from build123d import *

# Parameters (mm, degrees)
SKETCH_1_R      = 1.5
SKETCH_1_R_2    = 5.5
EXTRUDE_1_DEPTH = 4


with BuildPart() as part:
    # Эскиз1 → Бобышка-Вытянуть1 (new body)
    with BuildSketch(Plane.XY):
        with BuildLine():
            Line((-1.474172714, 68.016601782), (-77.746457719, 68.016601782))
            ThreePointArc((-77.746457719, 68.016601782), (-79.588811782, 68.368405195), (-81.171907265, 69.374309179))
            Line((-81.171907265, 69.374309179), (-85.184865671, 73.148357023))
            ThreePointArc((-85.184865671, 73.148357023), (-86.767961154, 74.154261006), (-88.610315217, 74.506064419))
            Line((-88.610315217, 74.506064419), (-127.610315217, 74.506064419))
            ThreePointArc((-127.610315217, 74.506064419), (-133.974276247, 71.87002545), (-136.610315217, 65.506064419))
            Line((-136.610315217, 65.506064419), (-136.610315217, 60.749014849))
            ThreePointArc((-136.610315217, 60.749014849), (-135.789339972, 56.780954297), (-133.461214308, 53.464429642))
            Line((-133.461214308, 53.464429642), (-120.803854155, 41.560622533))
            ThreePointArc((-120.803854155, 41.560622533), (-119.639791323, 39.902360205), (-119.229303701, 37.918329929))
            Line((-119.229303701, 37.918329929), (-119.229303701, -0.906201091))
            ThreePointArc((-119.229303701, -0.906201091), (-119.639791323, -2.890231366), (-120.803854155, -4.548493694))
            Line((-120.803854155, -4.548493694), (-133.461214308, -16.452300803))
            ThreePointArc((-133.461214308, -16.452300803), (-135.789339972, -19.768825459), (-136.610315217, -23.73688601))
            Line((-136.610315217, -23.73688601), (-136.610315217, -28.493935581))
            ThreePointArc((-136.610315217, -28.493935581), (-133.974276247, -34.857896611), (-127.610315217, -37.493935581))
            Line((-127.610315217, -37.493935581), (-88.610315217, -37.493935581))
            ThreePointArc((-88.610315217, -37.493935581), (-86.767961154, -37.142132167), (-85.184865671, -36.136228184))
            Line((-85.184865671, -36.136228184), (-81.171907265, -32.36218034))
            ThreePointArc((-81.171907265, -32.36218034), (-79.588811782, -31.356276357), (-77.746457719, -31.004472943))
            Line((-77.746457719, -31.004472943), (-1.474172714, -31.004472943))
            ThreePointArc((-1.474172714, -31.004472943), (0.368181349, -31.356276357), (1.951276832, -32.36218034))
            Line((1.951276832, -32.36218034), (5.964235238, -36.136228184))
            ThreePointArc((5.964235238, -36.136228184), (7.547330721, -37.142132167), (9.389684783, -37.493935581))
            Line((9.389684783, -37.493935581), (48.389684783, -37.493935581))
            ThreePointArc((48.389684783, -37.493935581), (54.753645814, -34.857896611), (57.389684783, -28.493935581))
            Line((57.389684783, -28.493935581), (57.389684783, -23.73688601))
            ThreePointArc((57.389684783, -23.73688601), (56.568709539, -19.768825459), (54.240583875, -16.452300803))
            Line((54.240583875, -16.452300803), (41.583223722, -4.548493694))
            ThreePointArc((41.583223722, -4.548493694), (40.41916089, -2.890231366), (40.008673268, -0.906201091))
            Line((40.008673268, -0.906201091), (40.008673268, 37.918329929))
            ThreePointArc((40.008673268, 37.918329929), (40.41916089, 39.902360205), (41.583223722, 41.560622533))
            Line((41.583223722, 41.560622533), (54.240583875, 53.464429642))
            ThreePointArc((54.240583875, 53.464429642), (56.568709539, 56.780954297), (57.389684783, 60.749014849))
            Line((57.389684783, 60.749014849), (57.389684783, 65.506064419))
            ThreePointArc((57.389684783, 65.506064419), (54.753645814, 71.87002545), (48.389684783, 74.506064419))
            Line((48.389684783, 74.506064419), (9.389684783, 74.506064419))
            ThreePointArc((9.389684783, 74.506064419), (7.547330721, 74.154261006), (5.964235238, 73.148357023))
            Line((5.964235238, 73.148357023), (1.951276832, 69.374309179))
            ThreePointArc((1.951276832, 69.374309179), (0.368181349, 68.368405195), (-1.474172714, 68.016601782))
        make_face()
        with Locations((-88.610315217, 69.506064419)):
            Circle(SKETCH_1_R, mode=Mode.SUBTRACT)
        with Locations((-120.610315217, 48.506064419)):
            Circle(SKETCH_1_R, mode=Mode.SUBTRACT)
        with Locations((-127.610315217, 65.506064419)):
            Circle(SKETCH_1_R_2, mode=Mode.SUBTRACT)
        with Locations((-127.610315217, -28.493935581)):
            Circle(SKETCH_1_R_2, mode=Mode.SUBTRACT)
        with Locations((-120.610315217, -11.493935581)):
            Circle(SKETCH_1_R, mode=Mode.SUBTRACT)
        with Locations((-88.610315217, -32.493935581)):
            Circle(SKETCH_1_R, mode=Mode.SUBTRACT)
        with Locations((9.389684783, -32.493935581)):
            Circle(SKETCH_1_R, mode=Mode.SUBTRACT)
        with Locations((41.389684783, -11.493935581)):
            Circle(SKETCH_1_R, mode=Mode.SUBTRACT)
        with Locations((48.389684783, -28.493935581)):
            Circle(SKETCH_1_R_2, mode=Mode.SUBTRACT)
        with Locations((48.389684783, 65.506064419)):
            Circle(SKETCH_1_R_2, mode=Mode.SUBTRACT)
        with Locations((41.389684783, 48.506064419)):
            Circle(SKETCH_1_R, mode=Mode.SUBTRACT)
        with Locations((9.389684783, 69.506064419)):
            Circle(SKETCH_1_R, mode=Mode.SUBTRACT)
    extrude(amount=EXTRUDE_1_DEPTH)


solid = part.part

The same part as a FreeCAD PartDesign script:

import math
import FreeCAD as App
import Part
import Sketcher
from FreeCAD import Vector

doc = App.newDocument("Part")
params = doc.addObject("Spreadsheet::Sheet", "Params")
for row, (alias, value) in enumerate([
    ("sketch1_diameter", "11 mm"),
    ("sketch1_diameter2", "3 mm"),
    ("sketch1_radius", "5 mm"),
    ("sketch1_radius2", "9 mm"),
    ("sketch1_radius3", "10 mm"),
    ("pad1_length", "4 mm"),
], start=1):
    params.set(f"A{row}", alias)
    params.set(f"B{row}", "=" + value)
    params.setAlias(f"B{row}", alias)

body = doc.addObject("PartDesign::Body", "Body")

# Sketch on XY plane
sketch1 = doc.addObject("Sketcher::SketchObject", "Sketch")
body.addObject(sketch1)
sketch1.AttachmentSupport = (doc.XY_Plane, [""])
sketch1.MapMode = "FlatFace"
sketch1.addGeometry([
    Part.LineSegment(Vector(-1.474173, 68.016602, 0), Vector(-77.746458, 68.016602, 0)),  # 0
    Part.ArcOfCircle(Part.Circle(Vector(-77.746458, 73.016602, 0), Vector(0, 0, 1), 5), math.radians(-133.242678), math.radians(-90)),  # 1
    Part.LineSegment(Vector(-81.171907, 69.374309, 0), Vector(-85.184866, 73.148357, 0)),  # 2
    Part.ArcOfCircle(Part.Circle(Vector(-88.610315, 69.506064, 0), Vector(0, 0, 1), 5), math.radians(46.757322), math.radians(90)),  # 3
    Part.LineSegment(Vector(-88.610315, 74.506064, 0), Vector(-127.610315, 74.506064, 0)),  # 4
    Part.ArcOfCircle(Part.Circle(Vector(-127.610315, 65.506064, 0), Vector(0, 0, 1), 9), math.radians(90), math.radians(180)),  # 5
    Part.LineSegment(Vector(-136.610315, 65.506064, 0), Vector(-136.610315, 60.749015, 0)),  # 6
    Part.ArcOfCircle(Part.Circle(Vector(-126.610315, 60.749015, 0), Vector(0, 0, 1), 10), math.radians(180), math.radians(226.757322)),  # 7
    Part.LineSegment(Vector(-133.461214, 53.46443, 0), Vector(-120.803854, 41.560623, 0)),  # 8
    Part.ArcOfCircle(Part.Circle(Vector(-124.229304, 37.91833, 0), Vector(0, 0, 1), 5), math.radians(0), math.radians(46.757322)),  # 9
    Part.LineSegment(Vector(-119.229304, 37.91833, 0), Vector(-119.229304, -0.906201, 0)),  # 10
    Part.ArcOfCircle(Part.Circle(Vector(-124.229304, -0.906201, 0), Vector(0, 0, 1), 5), math.radians(-46.757322), math.radians(0)),  # 11
    Part.LineSegment(Vector(-120.803854, -4.548494, 0), Vector(-133.461214, -16.452301, 0)),  # 12
    Part.ArcOfCircle(Part.Circle(Vector(-126.610315, -23.736886, 0), Vector(0, 0, 1), 10), math.radians(133.242678), math.radians(180)),  # 13
    Part.LineSegment(Vector(-136.610315, -23.736886, 0), Vector(-136.610315, -28.493936, 0)),  # 14
    Part.ArcOfCircle(Part.Circle(Vector(-127.610315, -28.493936, 0), Vector(0, 0, 1), 9), math.radians(-180), math.radians(-90)),  # 15
    Part.LineSegment(Vector(-127.610315, -37.493936, 0), Vector(-88.610315, -37.493936, 0)),  # 16
    Part.ArcOfCircle(Part.Circle(Vector(-88.610315, -32.493936, 0), Vector(0, 0, 1), 5), math.radians(-90), math.radians(-46.757322)),  # 17
    Part.LineSegment(Vector(-85.184866, -36.136228, 0), Vector(-81.171907, -32.36218, 0)),  # 18
    Part.ArcOfCircle(Part.Circle(Vector(-77.746458, -36.004473, 0), Vector(0, 0, 1), 5), math.radians(90), math.radians(133.242678)),  # 19
    Part.LineSegment(Vector(-77.746458, -31.004473, 0), Vector(-1.474173, -31.004473, 0)),  # 20
    Part.ArcOfCircle(Part.Circle(Vector(-1.474173, -36.004473, 0), Vector(0, 0, 1), 5), math.radians(46.757322), math.radians(90)),  # 21
    Part.LineSegment(Vector(1.951277, -32.36218, 0), Vector(5.964235, -36.136228, 0)),  # 22
    Part.ArcOfCircle(Part.Circle(Vector(9.389685, -32.493936, 0), Vector(0, 0, 1), 5), math.radians(-133.242678), math.radians(-90)),  # 23
    Part.LineSegment(Vector(9.389685, -37.493936, 0), Vector(48.389685, -37.493936, 0)),  # 24
    Part.ArcOfCircle(Part.Circle(Vector(48.389685, -28.493936, 0), Vector(0, 0, 1), 9), math.radians(-90), math.radians(0)),  # 25
    Part.LineSegment(Vector(57.389685, -28.493936, 0), Vector(57.389685, -23.736886, 0)),  # 26
    Part.ArcOfCircle(Part.Circle(Vector(47.389685, -23.736886, 0), Vector(0, 0, 1), 10), math.radians(0), math.radians(46.757322)),  # 27
    Part.LineSegment(Vector(54.240584, -16.452301, 0), Vector(41.583224, -4.548494, 0)),  # 28
    Part.ArcOfCircle(Part.Circle(Vector(45.008673, -0.906201, 0), Vector(0, 0, 1), 5), math.radians(180), math.radians(226.757322)),  # 29
    Part.LineSegment(Vector(40.008673, -0.906201, 0), Vector(40.008673, 37.91833, 0)),  # 30
    Part.ArcOfCircle(Part.Circle(Vector(45.008673, 37.91833, 0), Vector(0, 0, 1), 5), math.radians(133.242678), math.radians(180)),  # 31
    Part.LineSegment(Vector(41.583224, 41.560623, 0), Vector(54.240584, 53.46443, 0)),  # 32
    Part.ArcOfCircle(Part.Circle(Vector(47.389685, 60.749015, 0), Vector(0, 0, 1), 10), math.radians(-46.757322), math.radians(0)),  # 33
    Part.LineSegment(Vector(57.389685, 60.749015, 0), Vector(57.389685, 65.506064, 0)),  # 34
    Part.ArcOfCircle(Part.Circle(Vector(48.389685, 65.506064, 0), Vector(0, 0, 1), 9), math.radians(0), math.radians(90)),  # 35
    Part.LineSegment(Vector(48.389685, 74.506064, 0), Vector(9.389685, 74.506064, 0)),  # 36
    Part.ArcOfCircle(Part.Circle(Vector(9.389685, 69.506064, 0), Vector(0, 0, 1), 5), math.radians(90), math.radians(133.242678)),  # 37
    Part.LineSegment(Vector(5.964235, 73.148357, 0), Vector(1.951277, 69.374309, 0)),  # 38
    Part.ArcOfCircle(Part.Circle(Vector(-1.474173, 73.016602, 0), Vector(0, 0, 1), 5), math.radians(-90), math.radians(-46.757322)),  # 39
    Part.Circle(Vector(-127.610315, -28.493936, 0), Vector(0, 0, 1), 5.5),  # 40
    Part.Circle(Vector(-88.610315, -32.493936, 0), Vector(0, 0, 1), 1.5),  # 41
    Part.Circle(Vector(-120.610315, -11.493936, 0), Vector(0, 0, 1), 1.5),  # 42
    Part.Circle(Vector(9.389685, -32.493936, 0), Vector(0, 0, 1), 1.5),  # 43
    Part.Circle(Vector(48.389685, -28.493936, 0), Vector(0, 0, 1), 5.5),  # 44
    Part.Circle(Vector(41.389685, -11.493936, 0), Vector(0, 0, 1), 1.5),  # 45
    Part.Circle(Vector(-120.610315, 48.506064, 0), Vector(0, 0, 1), 1.5),  # 46
    Part.Circle(Vector(-127.610315, 65.506064, 0), Vector(0, 0, 1), 5.5),  # 47
    Part.Circle(Vector(-88.610315, 69.506064, 0), Vector(0, 0, 1), 1.5),  # 48
    Part.Circle(Vector(41.389685, 48.506064, 0), Vector(0, 0, 1), 1.5),  # 49
    Part.Circle(Vector(9.389685, 69.506064, 0), Vector(0, 0, 1), 1.5),  # 50
    Part.Circle(Vector(48.389685, 65.506064, 0), Vector(0, 0, 1), 5.5),  # 51
], False)
sketch1.addConstraint([
    Sketcher.Constraint("Tangent", 0, 2, 1, 2),
    Sketcher.Constraint("Tangent", 1, 1, 2, 1),
    Sketcher.Constraint("Tangent", 2, 2, 3, 1),
    Sketcher.Constraint("Tangent", 3, 2, 4, 1),
    Sketcher.Constraint("Tangent", 4, 2, 5, 1),
    Sketcher.Constraint("Tangent", 5, 2, 6, 1),
    Sketcher.Constraint("Tangent", 6, 2, 7, 1),
    Sketcher.Constraint("Tangent", 7, 2, 8, 1),
    Sketcher.Constraint("Tangent", 8, 2, 9, 2),
    Sketcher.Constraint("Tangent", 9, 1, 10, 1),
    Sketcher.Constraint("Tangent", 10, 2, 11, 2),
    Sketcher.Constraint("Tangent", 11, 1, 12, 1),
    Sketcher.Constraint("Tangent", 12, 2, 13, 1),
    Sketcher.Constraint("Tangent", 13, 2, 14, 1),
    Sketcher.Constraint("Tangent", 14, 2, 15, 1),
    Sketcher.Constraint("Tangent", 15, 2, 16, 1),
    Sketcher.Constraint("Tangent", 16, 2, 17, 1),
    Sketcher.Constraint("Tangent", 17, 2, 18, 1),
    Sketcher.Constraint("Tangent", 18, 2, 19, 2),
    Sketcher.Constraint("Tangent", 19, 1, 20, 1),
    Sketcher.Constraint("Tangent", 20, 2, 21, 2),
    Sketcher.Constraint("Tangent", 21, 1, 22, 1),
    Sketcher.Constraint("Tangent", 22, 2, 23, 1),
    Sketcher.Constraint("Tangent", 23, 2, 24, 1),
    Sketcher.Constraint("Tangent", 24, 2, 25, 1),
    Sketcher.Constraint("Tangent", 25, 2, 26, 1),
    Sketcher.Constraint("Tangent", 26, 2, 27, 1),
    Sketcher.Constraint("Tangent", 27, 2, 28, 1),
    Sketcher.Constraint("Tangent", 28, 2, 29, 2),
    Sketcher.Constraint("Tangent", 29, 1, 30, 1),
    Sketcher.Constraint("Tangent", 30, 2, 31, 2),
    Sketcher.Constraint("Tangent", 31, 1, 32, 1),
    Sketcher.Constraint("Tangent", 32, 2, 33, 1),
    Sketcher.Constraint("Tangent", 33, 2, 34, 1),
    Sketcher.Constraint("Tangent", 34, 2, 35, 1),
    Sketcher.Constraint("Tangent", 35, 2, 36, 1),
    Sketcher.Constraint("Tangent", 36, 2, 37, 1),
    Sketcher.Constraint("Tangent", 37, 2, 38, 1),
    Sketcher.Constraint("Tangent", 38, 2, 39, 2),
    Sketcher.Constraint("Tangent", 39, 1, 0, 1),
    Sketcher.Constraint("Horizontal", 0),
    Sketcher.Constraint("Horizontal", 4),
    Sketcher.Constraint("Vertical", 6),
    Sketcher.Constraint("Vertical", 10),
    Sketcher.Constraint("Vertical", 14),
    Sketcher.Constraint("Horizontal", 16),
    Sketcher.Constraint("Horizontal", 20),
    Sketcher.Constraint("Horizontal", 24),
    Sketcher.Constraint("Vertical", 26),
    Sketcher.Constraint("Vertical", 30),
    Sketcher.Constraint("Vertical", 34),
    Sketcher.Constraint("Horizontal", 36),
    Sketcher.Constraint("Coincident", 40, 3, 15, 3),
    Sketcher.Constraint("Coincident", 41, 3, 17, 3),
    Sketcher.Constraint("Coincident", 43, 3, 23, 3),
    Sketcher.Constraint("Coincident", 44, 3, 25, 3),
    Sketcher.Constraint("Coincident", 47, 3, 5, 3),
    Sketcher.Constraint("Coincident", 48, 3, 3, 3),
    Sketcher.Constraint("Coincident", 50, 3, 37, 3),
    Sketcher.Constraint("Coincident", 51, 3, 35, 3),
    Sketcher.Constraint("Equal", 1, 3),
    Sketcher.Constraint("Equal", 3, 9),
    Sketcher.Constraint("Equal", 9, 11),
    Sketcher.Constraint("Equal", 7, 13),
    Sketcher.Constraint("Equal", 5, 15),
    Sketcher.Constraint("Equal", 11, 17),
    Sketcher.Constraint("Equal", 17, 19),
    Sketcher.Constraint("Equal", 19, 21),
    Sketcher.Constraint("Equal", 21, 23),
    Sketcher.Constraint("Equal", 15, 25),
    Sketcher.Constraint("Equal", 13, 27),
    Sketcher.Constraint("Equal", 23, 29),
    Sketcher.Constraint("Equal", 29, 31),
    Sketcher.Constraint("Equal", 27, 33),
    Sketcher.Constraint("Equal", 25, 35),
    Sketcher.Constraint("Equal", 31, 37),
    Sketcher.Constraint("Equal", 37, 39),
    Sketcher.Constraint("Equal", 41, 42),
    Sketcher.Constraint("Equal", 42, 43),
    Sketcher.Constraint("Equal", 40, 44),
    Sketcher.Constraint("Equal", 43, 45),
    Sketcher.Constraint("Equal", 45, 46),
    Sketcher.Constraint("Equal", 44, 47),
    Sketcher.Constraint("Equal", 46, 48),
    Sketcher.Constraint("Equal", 48, 49),
    Sketcher.Constraint("Equal", 49, 50),
    Sketcher.Constraint("Equal", 47, 51),
    Sketcher.Constraint("Parallel", 2, 8),
    Sketcher.Constraint("Parallel", 12, 18),
    Sketcher.Constraint("Parallel", 8, 22),
    Sketcher.Constraint("Parallel", 22, 28),
    Sketcher.Constraint("Parallel", 18, 32),
    Sketcher.Constraint("Parallel", 32, 38),
    Sketcher.Constraint("Horizontal", 17, 3, 23, 3),
    Sketcher.Constraint("Horizontal", 13, 3, 27, 3),
    Sketcher.Constraint("Horizontal", 11, 3, 29, 3),
    Sketcher.Constraint("Horizontal", 9, 3, 31, 3),
    Sketcher.Constraint("Horizontal", 7, 3, 33, 3),
    Sketcher.Constraint("Horizontal", 5, 3, 35, 3),
    Sketcher.Constraint("Horizontal", 42, 3, 45, 3),
    Sketcher.Constraint("Horizontal", 46, 3, 49, 3),
    Sketcher.Constraint("Horizontal", 18, 2, 21, 1),
    Sketcher.Constraint("Vertical", 7, 3, 13, 3),
    Sketcher.Constraint("Vertical", 3, 3, 17, 3),
    Sketcher.Constraint("Vertical", 1, 3, 19, 3),
    Sketcher.Constraint("Vertical", 23, 3, 37, 3),
    Sketcher.Constraint("Vertical", 42, 3, 46, 3),
    Sketcher.Constraint("Vertical", 45, 3, 49, 3),
    Sketcher.Constraint("Equal", 16, 24),
    Sketcher.Constraint("Equal", 6, 14),
    Sketcher.Constraint("Diameter", 40, 11.0),
    Sketcher.Constraint("Diameter", 41, 3.0),
    Sketcher.Constraint("Radius", 1, 5.0),
    Sketcher.Constraint("Radius", 5, 9.0),
    Sketcher.Constraint("Radius", 7, 10.0),
    Sketcher.Constraint("DistanceX", 4, 2, 4, 1, 39.0),
    Sketcher.Constraint("DistanceY", 6, 2, 6, 1, 4.75705),
    Sketcher.Constraint("DistanceY", 10, 2, 10, 1, 38.824531),
    Sketcher.Constraint("DistanceY", -1, 1, 1, 3, 73.016602),
    Sketcher.Constraint("DistanceY", 11, 3, -1, 1, 0.906201),
    Sketcher.Constraint("DistanceY", 12, 2, -1, 1, 16.452301),
    Sketcher.Constraint("Distance", 8, 17.37554),
    Sketcher.Constraint("DistanceX", 0, 2, 0, 1, 76.272285),
    Sketcher.Constraint("DistanceX", 1, 3, -1, 1, 77.746458),
    Sketcher.Constraint("DistanceX", 42, 3, -1, 1, 120.610315),
    Sketcher.Constraint("DistanceY", 42, 3, -1, 1, 11.493936),
    Sketcher.Constraint("DistanceX", -1, 1, 45, 3, 41.389685),
    Sketcher.Constraint("DistanceY", -1, 1, 46, 3, 48.506064),
])
sketch1.setExpression("Constraints[110]", "Params.sketch1_diameter")
sketch1.setExpression("Constraints[111]", "Params.sketch1_diameter2")
sketch1.setExpression("Constraints[112]", "Params.sketch1_radius")
sketch1.setExpression("Constraints[113]", "Params.sketch1_radius2")
sketch1.setExpression("Constraints[114]", "Params.sketch1_radius3")
pad1 = doc.addObject("PartDesign::Pad", "Pad")
body.addObject(pad1)
pad1.Profile = sketch1
pad1.setExpression("Length", "Params.pad1_length")

doc.recompute()
